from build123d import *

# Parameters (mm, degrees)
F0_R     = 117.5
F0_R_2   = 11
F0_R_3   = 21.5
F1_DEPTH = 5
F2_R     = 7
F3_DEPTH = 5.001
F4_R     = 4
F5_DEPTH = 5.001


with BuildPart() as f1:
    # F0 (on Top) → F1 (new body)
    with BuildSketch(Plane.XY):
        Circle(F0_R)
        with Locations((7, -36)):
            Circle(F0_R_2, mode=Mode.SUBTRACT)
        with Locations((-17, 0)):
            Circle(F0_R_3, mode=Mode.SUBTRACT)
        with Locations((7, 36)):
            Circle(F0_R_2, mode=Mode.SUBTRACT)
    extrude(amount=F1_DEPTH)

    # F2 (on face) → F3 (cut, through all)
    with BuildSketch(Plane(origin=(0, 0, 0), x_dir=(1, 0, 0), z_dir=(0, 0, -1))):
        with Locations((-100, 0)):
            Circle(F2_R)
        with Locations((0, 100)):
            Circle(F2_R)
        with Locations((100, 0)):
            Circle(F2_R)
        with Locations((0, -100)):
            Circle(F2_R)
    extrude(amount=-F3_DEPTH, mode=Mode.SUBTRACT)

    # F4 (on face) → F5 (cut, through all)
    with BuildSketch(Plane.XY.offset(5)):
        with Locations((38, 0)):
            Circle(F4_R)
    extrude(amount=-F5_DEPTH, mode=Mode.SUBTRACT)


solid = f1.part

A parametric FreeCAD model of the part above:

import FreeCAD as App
import Part
import Sketcher

V = App.Vector
Q = App.Units.Quantity

doc = App.newDocument("Part")
params = doc.addObject("Spreadsheet::Sheet", "Params")
for row, (alias, value) in enumerate([
    ("sketch1_diameter", "235 mm"),
    ("sketch1_diameter2", "22 mm"),
    ("sketch1_diameter3", "43 mm"),
    ("pad1_length", "5 mm"),
    ("sketch2_diameter", "14 mm"),
    ("sketch3_diameter", "8 mm"),
], start=1):
    params.set(f"A{row}", alias)
    params.set(f"B{row}", "=" + value)
    params.setAlias(f"B{row}", alias)

body = doc.addObject("PartDesign::Body", "Body")

# Sketch on XY plane
sketch1 = body.newObject("Sketcher::SketchObject", "Sketch")
sketch1.AttachmentSupport = (doc.getObject("XY_Plane"), [""])
sketch1.MapMode = "FlatFace"
sketch1.addGeometry(Part.Circle(V(0, 0, 0), V(0, 0, 1), 118), False)
sketch1.addGeometry(Part.Circle(V(7, -36, 0), V(0, 0, 1), 11), False)
sketch1.addGeometry(Part.Circle(V(-17, 0, 0), V(0, 0, 1), 22), False)
sketch1.addGeometry(Part.Circle(V(7, 36, 0), V(0, 0, 1), 11), False)
sketch1.addConstraint(Sketcher.Constraint("Coincident", 0, 3, -1, 1))
sketch1.addConstraint(Sketcher.Constraint("Equal", 1, 3))
sketch1.addConstraint(Sketcher.Constraint("Symmetric", 1, 3, 3, 3, -1))
sketch1.addConstraint(Sketcher.Constraint("PointOnObject", 2, 3, -1))
sketch1.addConstraint(Sketcher.Constraint("Diameter", 0, Q("235 mm")))
sketch1.addConstraint(Sketcher.Constraint("Diameter", 1, Q("22 mm")))
sketch1.addConstraint(Sketcher.Constraint("Diameter", 2, Q("43 mm")))
sketch1.addConstraint(Sketcher.Constraint("DistanceX", -1, 1, 1, 3, Q("7 mm")))
sketch1.addConstraint(Sketcher.Constraint("DistanceY", 1, 3, -1, 1, Q("36 mm")))
sketch1.addConstraint(Sketcher.Constraint("DistanceX", 2, 3, -1, 1, Q("17 mm")))
sketch1.setExpression("Constraints[4]", "Params.sketch1_diameter")
sketch1.setExpression("Constraints[5]", "Params.sketch1_diameter2")
sketch1.setExpression("Constraints[6]", "Params.sketch1_diameter3")
pad1 = body.newObject("PartDesign::Pad", "Pad")
pad1.Profile = sketch1
pad1.setExpression("Length", "Params.pad1_length")

# Sketch on XY plane
sketch2 = body.newObject("Sketcher::SketchObject", "Sketch001")
sketch2.AttachmentSupport = (doc.getObject("XY_Plane"), [""])
sketch2.MapMode = "FlatFace"
sketch2.addGeometry(Part.Circle(V(-100, 0, 0), V(0, 0, 1), 7), False)
sketch2.addGeometry(Part.Circle(V(0, -100, 0), V(0, 0, 1), 7), False)
sketch2.addGeometry(Part.Circle(V(100, 0, 0), V(0, 0, 1), 7), False)
sketch2.addGeometry(Part.Circle(V(0, 100, 0), V(0, 0, 1), 7), False)
sketch2.addConstraint(Sketcher.Constraint("Equal", 0, 1))
sketch2.addConstraint(Sketcher.Constraint("Equal", 1, 2))
sketch2.addConstraint(Sketcher.Constraint("Equal", 2, 3))
sketch2.addConstraint(Sketcher.Constraint("Symmetric", 0, 3, 2, 3, -1, 1))
sketch2.addConstraint(Sketcher.Constraint("Symmetric", 1, 3, 3, 3, -1, 1))
sketch2.addConstraint(Sketcher.Constraint("PointOnObject", 0, 3, -1))
sketch2.addConstraint(Sketcher.Constraint("PointOnObject", 1, 3, -2))
sketch2.addConstraint(Sketcher.Constraint("Diameter", 0, Q("14 mm")))
sketch2.addConstraint(Sketcher.Constraint("DistanceX", 0, 3, -1, 1, Q("100 mm")))
sketch2.addConstraint(Sketcher.Constraint("DistanceY", 1, 3, -1, 1, Q("100 mm")))
sketch2.setExpression("Constraints[7]", "Params.sketch2_diameter")
pocket1 = body.newObject("PartDesign::Pocket", "Pocket")
pocket1.Profile = sketch2
pocket1.Type = "ThroughAll"
pocket1.Reversed = True

# Sketch on XY plane
sketch3 = body.newObject("Sketcher::SketchObject", "Sketch002")
sketch3.AttachmentSupport = (doc.getObject("XY_Plane"), [""])
sketch3.MapMode = "FlatFace"
sketch3.AttachmentOffset = App.Placement(V(0, 0, 5), App.Rotation())
sketch3.addGeometry(Part.Circle(V(38, 0, 0), V(0, 0, 1), 4), False)
sketch3.addConstraint(Sketcher.Constraint("PointOnObject", 0, 3, -1))
sketch3.addConstraint(Sketcher.Constraint("Diameter", 0, Q("8 mm")))
sketch3.addConstraint(Sketcher.Constraint("DistanceX", -1, 1, 0, 3, Q("38 mm")))
sketch3.setExpression("Constraints[1]", "Params.sketch3_diameter")
pocket2 = body.newObject("PartDesign::Pocket", "Pocket001")
pocket2.Profile = sketch3
pocket2.Type = "ThroughAll"

doc.recompute()
